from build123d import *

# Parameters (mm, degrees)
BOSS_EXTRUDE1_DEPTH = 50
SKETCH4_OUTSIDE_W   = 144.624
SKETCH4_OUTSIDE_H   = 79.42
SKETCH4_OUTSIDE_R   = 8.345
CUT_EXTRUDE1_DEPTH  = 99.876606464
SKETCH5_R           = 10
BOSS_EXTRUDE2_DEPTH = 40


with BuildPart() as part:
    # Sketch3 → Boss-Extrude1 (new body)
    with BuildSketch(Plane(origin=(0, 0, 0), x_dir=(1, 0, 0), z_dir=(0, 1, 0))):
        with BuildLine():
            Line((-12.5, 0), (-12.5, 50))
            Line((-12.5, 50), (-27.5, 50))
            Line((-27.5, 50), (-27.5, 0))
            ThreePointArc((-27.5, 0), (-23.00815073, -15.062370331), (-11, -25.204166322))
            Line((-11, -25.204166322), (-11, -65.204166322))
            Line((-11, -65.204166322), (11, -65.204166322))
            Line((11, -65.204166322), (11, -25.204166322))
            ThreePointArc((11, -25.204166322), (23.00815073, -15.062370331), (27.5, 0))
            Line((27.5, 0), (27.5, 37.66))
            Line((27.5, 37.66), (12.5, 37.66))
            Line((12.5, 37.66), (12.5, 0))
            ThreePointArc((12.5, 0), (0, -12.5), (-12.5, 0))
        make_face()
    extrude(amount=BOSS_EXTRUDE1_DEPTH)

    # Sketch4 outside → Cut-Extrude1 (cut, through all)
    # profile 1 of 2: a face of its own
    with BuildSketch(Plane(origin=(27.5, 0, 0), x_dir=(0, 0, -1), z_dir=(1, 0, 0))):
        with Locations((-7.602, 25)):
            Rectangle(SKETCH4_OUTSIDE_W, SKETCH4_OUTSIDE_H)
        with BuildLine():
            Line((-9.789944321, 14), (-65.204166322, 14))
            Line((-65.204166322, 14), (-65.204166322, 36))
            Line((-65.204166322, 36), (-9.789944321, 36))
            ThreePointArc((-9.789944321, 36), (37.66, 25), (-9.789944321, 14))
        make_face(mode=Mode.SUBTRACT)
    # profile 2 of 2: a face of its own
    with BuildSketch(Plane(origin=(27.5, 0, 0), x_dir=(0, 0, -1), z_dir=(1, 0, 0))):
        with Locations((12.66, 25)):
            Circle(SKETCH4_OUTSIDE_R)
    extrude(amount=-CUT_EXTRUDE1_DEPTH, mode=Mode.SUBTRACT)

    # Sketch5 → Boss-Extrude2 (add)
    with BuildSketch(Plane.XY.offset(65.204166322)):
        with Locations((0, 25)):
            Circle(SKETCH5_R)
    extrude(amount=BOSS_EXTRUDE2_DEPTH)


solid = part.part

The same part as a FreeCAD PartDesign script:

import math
import FreeCAD as App
import Part
import Sketcher

doc = App.newDocument("Part")
body = doc.addObject("PartDesign::Body", "Body")

sketch1 = doc.addObject("Sketcher::SketchObject", "Sketch")
body.addObject(sketch1)
sketch1.AttachmentSupport = (doc.XZ_Plane, [""])
sketch1.MapMode = "FlatFace"
sketch1.addGeometry([
    Part.LineSegment(App.Vector(-12.5, 0, 0), App.Vector(-12.5, -50, 0)),
    Part.LineSegment(App.Vector(-12.5, -50, 0), App.Vector(-27.5, -50, 0)),
    Part.LineSegment(App.Vector(-27.5, -50, 0), App.Vector(-27.5, 0, 0)),
    Part.ArcOfCircle(Part.Circle(App.Vector(0, 0, 0), App.Vector(0, 0, 1), 27.5), math.radians(113.578178), math.radians(180)),
    Part.LineSegment(App.Vector(-11, 25.204166, 0), App.Vector(-11, 65.204166, 0)),
    Part.LineSegment(App.Vector(-11, 65.204166, 0), App.Vector(11, 65.204166, 0)),
    Part.LineSegment(App.Vector(11, 65.204166, 0), App.Vector(11, 25.204166, 0)),
    Part.ArcOfCircle(Part.Circle(App.Vector(0, 0, 0), App.Vector(0, 0, 1), 27.5), math.radians(0), math.radians(66.421822)),
    Part.LineSegment(App.Vector(27.5, 0, 0), App.Vector(27.5, -37.66, 0)),
    Part.LineSegment(App.Vector(27.5, -37.66, 0), App.Vector(12.5, -37.66, 0)),
    Part.LineSegment(App.Vector(12.5, -37.66, 0), App.Vector(12.5, 0, 0)),
    Part.ArcOfCircle(Part.Circle(App.Vector(0, 0, 0), App.Vector(0, 0, 1), 12.5), math.radians(0), math.radians(180)),
], False)
sketch1.addConstraint([
    Sketcher.Constraint("Coincident", 0, 2, 1, 1),
    Sketcher.Constraint("Coincident", 1, 2, 2, 1),
    Sketcher.Constraint("Tangent", 2, 2, 3, 2),
    Sketcher.Constraint("Coincident", 3, 1, 4, 1),
    Sketcher.Constraint("Coincident", 4, 2, 5, 1),
    Sketcher.Constraint("Coincident", 5, 2, 6, 1),
    Sketcher.Constraint("Coincident", 6, 2, 7, 2),
    Sketcher.Constraint("Tangent", 7, 1, 8, 1),
    Sketcher.Constraint("Coincident", 8, 2, 9, 1),
    Sketcher.Constraint("Coincident", 9, 2, 10, 1),
    Sketcher.Constraint("Tangent", 10, 2, 11, 1),
    Sketcher.Constraint("Tangent", 11, 2, 0, 1),
    Sketcher.Constraint("Vertical", 0),
    Sketcher.Constraint("Horizontal", 1),
    Sketcher.Constraint("Vertical", 2),
    Sketcher.Constraint("Vertical", 4),
    Sketcher.Constraint("Horizontal", 5),
    Sketcher.Constraint("Vertical", 6),
    Sketcher.Constraint("Vertical", 8),
    Sketcher.Constraint("Horizontal", 9),
    Sketcher.Constraint("Vertical", 10),
    Sketcher.Constraint("Coincident", 3, 3, -1, 1),
    Sketcher.Constraint("Coincident", 7, 3, -1, 1),
    Sketcher.Constraint("Coincident", 11, 3, -1, 1),
    Sketcher.Constraint("Equal", 3, 7),
    Sketcher.Constraint("Horizontal", 3, 1, 6, 2),
    Sketcher.Constraint("Radius", 3, 27.5),
    Sketcher.Constraint("Radius", 11, 12.5),
    Sketcher.Constraint("DistanceX", 5, 1, 5, 2, 22.0),
    Sketcher.Constraint("DistanceY", 0, 2, 0, 1, 50.0),
    Sketcher.Constraint("DistanceY", 4, 1, 4, 2, 40.0),
    Sketcher.Constraint("DistanceY", 8, 2, 8, 1, 37.66),
])
pad1 = doc.addObject("PartDesign::Pad", "Pad")
body.addObject(pad1)
pad1.Profile = sketch1
pad1.Length = 50
pad1.Reversed = True

sketch2 = doc.addObject("Sketcher::SketchObject", "Sketch001")
body.addObject(sketch2)
sketch2.AttachmentSupport = (doc.YZ_Plane, [""])
sketch2.MapMode = "FlatFace"
sketch2.AttachmentOffset = App.Placement(App.Vector(0, 0, 27.5), App.Rotation())
sketch2.addGeometry([
    Part.LineSegment(App.Vector(64.71, 79.914, 0), App.Vector(-14.71, 79.914, 0)),
    Part.LineSegment(App.Vector(-14.71, 79.914, 0), App.Vector(-14.71, -64.71, 0)),
    Part.LineSegment(App.Vector(-14.71, -64.71, 0), App.Vector(64.71, -64.71, 0)),
    Part.LineSegment(App.Vector(64.71, -64.71, 0), App.Vector(64.71, 79.914, 0)),
    Part.ArcOfCircle(Part.Circle(App.Vector(25, -12.66, 0), App.Vector(0, 0, 1), 25), math.radians(116.103881), math.radians(423.896119)),
    Part.LineSegment(App.Vector(14, 9.789944, 0), App.Vector(14, 65.204166, 0)),
    Part.LineSegment(App.Vector(14, 65.204166, 0), App.Vector(36, 65.204166, 0)),
    Part.LineSegment(App.Vector(36, 65.204166, 0), App.Vector(36, 9.789944, 0)),
    Part.Circle(App.Vector(25, -12.66, 0), App.Vector(0, 0, 1), 8.345),
], False)
sketch2.addConstraint([
    Sketcher.Constraint("Coincident", 0, 2, 1, 1),
    Sketcher.Constraint("Coincident", 1, 2, 2, 1),
    Sketcher.Constraint("Coincident", 2, 2, 3, 1),
    Sketcher.Constraint("Coincident", 3, 2, 0, 1),
    Sketcher.Constraint("Coincident", 4, 1, 5, 1),
    Sketcher.Constraint("Coincident", 5, 2, 6, 1),
    Sketcher.Constraint("Coincident", 6, 2, 7, 1),
    Sketcher.Constraint("Coincident", 7, 2, 4, 2),
    Sketcher.Constraint("Horizontal", 0),
    Sketcher.Constraint("Vertical", 1),
    Sketcher.Constraint("Horizontal", 2),
    Sketcher.Constraint("Vertical", 3),
    Sketcher.Constraint("Vertical", 5),
    Sketcher.Constraint("Horizontal", 6),
    Sketcher.Constraint("Vertical", 7),
    Sketcher.Constraint("Coincident", 8, 3, 4, 3),
    Sketcher.Constraint("Horizontal", 4, 1, 7, 2),
    Sketcher.Constraint("Radius", 4, 25.0),
    Sketcher.Constraint("Diameter", 8, 16.69),
    Sketcher.Constraint("DistanceX", 6, 1, 6, 2, 22.0),
    Sketcher.Constraint("DistanceX", -1, 1, 4, 3, 25.0),
    Sketcher.Constraint("DistanceX", 0, 2, 0, 1, 79.42),
    Sketcher.Constraint("DistanceY", 1, 2, 1, 1, 144.624),
    Sketcher.Constraint("DistanceY", 4, 3, -1, 1, 12.66),
    Sketcher.Constraint("DistanceX", 0, 2, -1, 1, 14.71),
    Sketcher.Constraint("DistanceY", 1, 2, -1, 1, 64.71),
    Sketcher.Constraint("DistanceY", 5, 1, 5, 2, 55.414222),
])
pocket1 = doc.addObject("PartDesign::Pocket", "Pocket")
body.addObject(pocket1)
pocket1.Profile = sketch2
pocket1.Length = 99.876606

sketch3 = doc.addObject("Sketcher::SketchObject", "Sketch002")
body.addObject(sketch3)
sketch3.AttachmentSupport = (doc.XY_Plane, [""])
sketch3.MapMode = "FlatFace"
sketch3.AttachmentOffset = App.Placement(App.Vector(0, 0, 65.204166), App.Rotation())
sketch3.addGeometry(Part.Circle(App.Vector(0, 25, 0), App.Vector(0, 0, 1), 10), False)
sketch3.addConstraint([
    Sketcher.Constraint("PointOnObject", 0, 3, -2),
    Sketcher.Constraint("Diameter", 0, 20.0),
    Sketcher.Constraint("DistanceY", -1, 1, 0, 3, 25.0),
])
pad2 = doc.addObject("PartDesign::Pad", "Pad001")
body.addObject(pad2)
pad2.Profile = sketch3
pad2.Length = 40

doc.recompute()
